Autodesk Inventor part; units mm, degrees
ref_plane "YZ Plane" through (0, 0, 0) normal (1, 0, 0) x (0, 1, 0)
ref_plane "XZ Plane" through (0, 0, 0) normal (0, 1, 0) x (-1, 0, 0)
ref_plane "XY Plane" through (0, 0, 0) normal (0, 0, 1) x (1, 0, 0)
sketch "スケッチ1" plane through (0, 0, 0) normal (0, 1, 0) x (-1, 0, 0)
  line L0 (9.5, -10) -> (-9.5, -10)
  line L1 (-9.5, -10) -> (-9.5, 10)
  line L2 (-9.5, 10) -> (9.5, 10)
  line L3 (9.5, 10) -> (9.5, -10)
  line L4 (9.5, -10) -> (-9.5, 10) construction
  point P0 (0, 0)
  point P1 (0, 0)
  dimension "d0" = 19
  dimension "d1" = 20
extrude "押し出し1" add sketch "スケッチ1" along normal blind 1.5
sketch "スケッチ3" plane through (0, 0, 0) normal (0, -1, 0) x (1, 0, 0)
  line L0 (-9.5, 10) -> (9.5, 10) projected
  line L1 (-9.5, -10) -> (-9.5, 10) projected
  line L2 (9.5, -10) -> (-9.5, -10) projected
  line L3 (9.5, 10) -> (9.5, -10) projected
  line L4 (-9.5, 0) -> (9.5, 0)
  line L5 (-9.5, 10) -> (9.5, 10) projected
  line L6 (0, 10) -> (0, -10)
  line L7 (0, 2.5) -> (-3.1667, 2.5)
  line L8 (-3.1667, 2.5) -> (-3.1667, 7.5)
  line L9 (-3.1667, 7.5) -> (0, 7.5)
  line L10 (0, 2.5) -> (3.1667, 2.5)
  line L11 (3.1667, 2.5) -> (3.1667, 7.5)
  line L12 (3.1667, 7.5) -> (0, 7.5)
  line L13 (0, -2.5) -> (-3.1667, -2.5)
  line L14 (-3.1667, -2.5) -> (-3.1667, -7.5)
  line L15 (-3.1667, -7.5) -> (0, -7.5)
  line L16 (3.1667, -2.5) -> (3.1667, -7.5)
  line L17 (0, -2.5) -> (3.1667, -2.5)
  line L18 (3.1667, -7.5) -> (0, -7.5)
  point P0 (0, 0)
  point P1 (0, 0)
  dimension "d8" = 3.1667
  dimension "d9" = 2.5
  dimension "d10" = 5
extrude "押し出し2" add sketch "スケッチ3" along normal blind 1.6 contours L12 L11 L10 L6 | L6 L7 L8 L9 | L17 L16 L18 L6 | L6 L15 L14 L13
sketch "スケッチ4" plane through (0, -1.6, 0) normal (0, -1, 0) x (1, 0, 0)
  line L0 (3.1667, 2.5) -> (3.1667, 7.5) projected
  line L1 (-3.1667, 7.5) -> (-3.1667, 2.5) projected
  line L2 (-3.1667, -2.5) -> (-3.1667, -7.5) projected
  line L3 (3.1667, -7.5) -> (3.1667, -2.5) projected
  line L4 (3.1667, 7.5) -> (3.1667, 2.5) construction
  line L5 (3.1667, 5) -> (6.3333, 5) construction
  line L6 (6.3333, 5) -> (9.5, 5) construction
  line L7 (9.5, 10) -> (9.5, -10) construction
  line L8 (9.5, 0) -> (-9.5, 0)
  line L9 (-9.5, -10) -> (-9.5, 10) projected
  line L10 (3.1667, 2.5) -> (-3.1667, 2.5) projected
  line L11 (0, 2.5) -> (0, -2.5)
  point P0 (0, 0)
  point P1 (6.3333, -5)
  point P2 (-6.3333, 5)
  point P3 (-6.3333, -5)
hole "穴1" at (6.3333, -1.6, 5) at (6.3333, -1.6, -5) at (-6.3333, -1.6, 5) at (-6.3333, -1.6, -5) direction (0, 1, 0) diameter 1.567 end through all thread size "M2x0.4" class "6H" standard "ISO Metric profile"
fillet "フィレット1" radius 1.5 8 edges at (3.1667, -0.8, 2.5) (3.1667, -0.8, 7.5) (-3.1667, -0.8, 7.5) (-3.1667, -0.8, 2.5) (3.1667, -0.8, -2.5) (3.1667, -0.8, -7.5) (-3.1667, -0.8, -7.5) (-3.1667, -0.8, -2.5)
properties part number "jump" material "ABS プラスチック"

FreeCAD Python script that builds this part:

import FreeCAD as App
import Part
import Sketcher

V = App.Vector


def edges_at(feature, points):
    """Names of the edges that pass closest to the given points."""
    edges = feature.Shape.Edges
    near = lambda p: min(range(len(edges)), key=lambda i: edges[i].distToShape(Part.Vertex(*p))[0])
    return sorted({f"Edge{near(p) + 1}" for p in points})

doc = App.newDocument("Part")
params = doc.addObject("Spreadsheet::Sheet", "Params")
for row, (alias, value) in enumerate([
    ("sketch1_width", "19 mm"),
    ("sketch1_height", "20 mm"),
    ("pad1_length", "1.5 mm"),
    ("sketch2_height", "5 mm"),
    ("pad2_length", "1.6 mm"),
    ("hole_diameter", "1.567 mm"),
    ("fillet_radius", "1.5 mm"),
], start=1):
    params.set(f"A{row}", alias)
    params.set(f"B{row}", "=" + value)
    params.setAlias(f"B{row}", alias)

body = doc.addObject("PartDesign::Body", "Body")

sketch1 = doc.addObject("Sketcher::SketchObject", "Sketch")
body.addObject(sketch1)
sketch1.AttachmentSupport = (doc.XZ_Plane, [""])
sketch1.MapMode = "FlatFace"
sketch1.addGeometry(Part.LineSegment(V(10, -10, 0), V(-10, -10, 0)), False)
sketch1.addGeometry(Part.LineSegment(V(-10, -10, 0), V(-10, 10, 0)), False)
sketch1.addGeometry(Part.LineSegment(V(-10, 10, 0), V(10, 10, 0)), False)
sketch1.addGeometry(Part.LineSegment(V(10, 10, 0), V(10, -10, 0)), False)
sketch1.addConstraint(Sketcher.Constraint("Coincident", 0, 2, 1, 1))
sketch1.addConstraint(Sketcher.Constraint("Coincident", 1, 2, 2, 1))
sketch1.addConstraint(Sketcher.Constraint("Coincident", 2, 2, 3, 1))
sketch1.addConstraint(Sketcher.Constraint("Coincident", 3, 2, 0, 1))
sketch1.addConstraint(Sketcher.Constraint("Horizontal", 0))
sketch1.addConstraint(Sketcher.Constraint("Vertical", 1))
sketch1.addConstraint(Sketcher.Constraint("Horizontal", 2))
sketch1.addConstraint(Sketcher.Constraint("Vertical", 3))
sketch1.addConstraint(Sketcher.Constraint("Symmetric", 0, 2, 2, 2, -1, 1))
sketch1.addConstraint(Sketcher.Constraint("DistanceX", 0, 2, 0, 1, 19.0))
sketch1.addConstraint(Sketcher.Constraint("DistanceY", 1, 1, 1, 2, 20.0))
sketch1.setExpression("Constraints[9]", "Params.sketch1_width")
sketch1.setExpression("Constraints[10]", "Params.sketch1_height")
pad1 = doc.addObject("PartDesign::Pad", "Pad")
body.addObject(pad1)
pad1.Profile = sketch1
pad1.setExpression("Length", "Params.pad1_length")
pad1.Reversed = True

sketch2 = doc.addObject("Sketcher::SketchObject", "Sketch001")
body.addObject(sketch2)
sketch2.AttachmentSupport = (doc.XZ_Plane, [""])
sketch2.MapMode = "FlatFace"
sketch2.addGeometry(Part.LineSegment(V(3, 8, 0), V(-3, 8, 0)), False)
sketch2.addGeometry(Part.LineSegment(V(-3, 8, 0), V(-3, 2, 0)), False)
sketch2.addGeometry(Part.LineSegment(V(-3, 2, 0), V(3, 2, 0)), False)
sketch2.addGeometry(Part.LineSegment(V(3, 2, 0), V(3, 8, 0)), False)
sketch2.addGeometry(Part.LineSegment(V(3, -2, 0), V(-3, -2, 0)), False)
sketch2.addGeometry(Part.LineSegment(V(-3, -2, 0), V(-3, -8, 0)), False)
sketch2.addGeometry(Part.LineSegment(V(-3, -8, 0), V(3, -8, 0)), False)
sketch2.addGeometry(Part.LineSegment(V(3, -8, 0), V(3, -2, 0)), False)
sketch2.addConstraint(Sketcher.Constraint("Coincident", 0, 2, 1, 1))
sketch2.addConstraint(Sketcher.Constraint("Coincident", 1, 2, 2, 1))
sketch2.addConstraint(Sketcher.Constraint("Coincident", 2, 2, 3, 1))
sketch2.addConstraint(Sketcher.Constraint("Coincident", 3, 2, 0, 1))
sketch2.addConstraint(Sketcher.Constraint("Coincident", 4, 2, 5, 1))
sketch2.addConstraint(Sketcher.Constraint("Coincident", 5, 2, 6, 1))
sketch2.addConstraint(Sketcher.Constraint("Coincident", 6, 2, 7, 1))
sketch2.addConstraint(Sketcher.Constraint("Coincident", 7, 2, 4, 1))
sketch2.addConstraint(Sketcher.Constraint("Horizontal", 0))
sketch2.addConstraint(Sketcher.Constraint("Vertical", 1))
sketch2.addConstraint(Sketcher.Constraint("Horizontal", 2))
sketch2.addConstraint(Sketcher.Constraint("Vertical", 3))
sketch2.addConstraint(Sketcher.Constraint("Horizontal", 4))
sketch2.addConstraint(Sketcher.Constraint("Vertical", 5))
sketch2.addConstraint(Sketcher.Constraint("Horizontal", 6))
sketch2.addConstraint(Sketcher.Constraint("Vertical", 7))
sketch2.addConstraint(Sketcher.Constraint("Symmetric", 2, 2, 4, 2, -1, 1))
sketch2.addConstraint(Sketcher.Constraint("Symmetric", 0, 2, 6, 2, -1, 1))
sketch2.addConstraint(Sketcher.Constraint("Vertical", 1, 2, 4, 2))
sketch2.addConstraint(Sketcher.Constraint("DistanceY", 1, 2, 1, 1, 5.0))
sketch2.addConstraint(Sketcher.Constraint("DistanceY", 4, 2, 1, 2, 5.0))
sketch2.addConstraint(Sketcher.Constraint("DistanceX", 0, 2, -1, 1, 3.1667))
sketch2.setExpression("Constraints[19]", "Params.sketch2_height")
pad2 = doc.addObject("PartDesign::Pad", "Pad001")
body.addObject(pad2)
pad2.Profile = sketch2
pad2.setExpression("Length", "Params.pad2_length")

sketch3 = doc.addObject("Sketcher::SketchObject", "Sketch002")
body.addObject(sketch3)
sketch3.AttachmentSupport = (doc.XZ_Plane, [""])
sketch3.MapMode = "FlatFace"
sketch3.AttachmentOffset = App.Placement(V(0, 0, 1.6), App.Rotation())
sketch3.addGeometry(Part.Circle(V(6.3, 5, 0), V(0, 0, 1), 0.8), False)
sketch3.addGeometry(Part.Circle(V(6.3, -5, 0), V(0, 0, 1), 0.8), False)
sketch3.addGeometry(Part.Circle(V(-6.3, 5, 0), V(0, 0, 1), 0.8), False)
sketch3.addGeometry(Part.Circle(V(-6.3, -5, 0), V(0, 0, 1), 0.8), False)
sketch3.addConstraint(Sketcher.Constraint("Equal", 0, 1))
sketch3.addConstraint(Sketcher.Constraint("Equal", 1, 2))
sketch3.addConstraint(Sketcher.Constraint("Equal", 2, 3))
sketch3.addConstraint(Sketcher.Constraint("Symmetric", 1, 3, 2, 3, -1, 1))
sketch3.addConstraint(Sketcher.Constraint("Symmetric", 0, 3, 3, 3, -1, 1))
sketch3.addConstraint(Sketcher.Constraint("Symmetric", 0, 3, 2, 3, -2))
sketch3.addConstraint(Sketcher.Constraint("Diameter", 0, 1.567))
sketch3.addConstraint(Sketcher.Constraint("DistanceY", -1, 1, 0, 3, 5.0))
sketch3.addConstraint(Sketcher.Constraint("DistanceX", -1, 1, 0, 3, 6.3333))
doc.recompute()
hole = doc.addObject("PartDesign::Hole", "Hole")
body.addObject(hole)
hole.Profile = sketch3
hole.ThreadType = "None"
hole.setExpression("Diameter", "Params.hole_diameter")
hole.DepthType = "ThroughAll"
doc.recompute()

fillet = doc.addObject("PartDesign::Fillet", "Fillet")
body.addObject(fillet)
fillet.Base = (hole, edges_at(hole, [
    (3.167, -0.8, 2.5),
    (3.167, -0.8, 7.5),
    (-3.167, -0.8, 7.5),
    (-3.167, -0.8, 2.5),
    (3.167, -0.8, -2.5),
    (3.167, -0.8, -7.5),
    (-3.167, -0.8, -7.5),
    (-3.167, -0.8, -2.5),
]))
fillet.setExpression("Radius", "Params.fillet_radius")

doc.recompute()
